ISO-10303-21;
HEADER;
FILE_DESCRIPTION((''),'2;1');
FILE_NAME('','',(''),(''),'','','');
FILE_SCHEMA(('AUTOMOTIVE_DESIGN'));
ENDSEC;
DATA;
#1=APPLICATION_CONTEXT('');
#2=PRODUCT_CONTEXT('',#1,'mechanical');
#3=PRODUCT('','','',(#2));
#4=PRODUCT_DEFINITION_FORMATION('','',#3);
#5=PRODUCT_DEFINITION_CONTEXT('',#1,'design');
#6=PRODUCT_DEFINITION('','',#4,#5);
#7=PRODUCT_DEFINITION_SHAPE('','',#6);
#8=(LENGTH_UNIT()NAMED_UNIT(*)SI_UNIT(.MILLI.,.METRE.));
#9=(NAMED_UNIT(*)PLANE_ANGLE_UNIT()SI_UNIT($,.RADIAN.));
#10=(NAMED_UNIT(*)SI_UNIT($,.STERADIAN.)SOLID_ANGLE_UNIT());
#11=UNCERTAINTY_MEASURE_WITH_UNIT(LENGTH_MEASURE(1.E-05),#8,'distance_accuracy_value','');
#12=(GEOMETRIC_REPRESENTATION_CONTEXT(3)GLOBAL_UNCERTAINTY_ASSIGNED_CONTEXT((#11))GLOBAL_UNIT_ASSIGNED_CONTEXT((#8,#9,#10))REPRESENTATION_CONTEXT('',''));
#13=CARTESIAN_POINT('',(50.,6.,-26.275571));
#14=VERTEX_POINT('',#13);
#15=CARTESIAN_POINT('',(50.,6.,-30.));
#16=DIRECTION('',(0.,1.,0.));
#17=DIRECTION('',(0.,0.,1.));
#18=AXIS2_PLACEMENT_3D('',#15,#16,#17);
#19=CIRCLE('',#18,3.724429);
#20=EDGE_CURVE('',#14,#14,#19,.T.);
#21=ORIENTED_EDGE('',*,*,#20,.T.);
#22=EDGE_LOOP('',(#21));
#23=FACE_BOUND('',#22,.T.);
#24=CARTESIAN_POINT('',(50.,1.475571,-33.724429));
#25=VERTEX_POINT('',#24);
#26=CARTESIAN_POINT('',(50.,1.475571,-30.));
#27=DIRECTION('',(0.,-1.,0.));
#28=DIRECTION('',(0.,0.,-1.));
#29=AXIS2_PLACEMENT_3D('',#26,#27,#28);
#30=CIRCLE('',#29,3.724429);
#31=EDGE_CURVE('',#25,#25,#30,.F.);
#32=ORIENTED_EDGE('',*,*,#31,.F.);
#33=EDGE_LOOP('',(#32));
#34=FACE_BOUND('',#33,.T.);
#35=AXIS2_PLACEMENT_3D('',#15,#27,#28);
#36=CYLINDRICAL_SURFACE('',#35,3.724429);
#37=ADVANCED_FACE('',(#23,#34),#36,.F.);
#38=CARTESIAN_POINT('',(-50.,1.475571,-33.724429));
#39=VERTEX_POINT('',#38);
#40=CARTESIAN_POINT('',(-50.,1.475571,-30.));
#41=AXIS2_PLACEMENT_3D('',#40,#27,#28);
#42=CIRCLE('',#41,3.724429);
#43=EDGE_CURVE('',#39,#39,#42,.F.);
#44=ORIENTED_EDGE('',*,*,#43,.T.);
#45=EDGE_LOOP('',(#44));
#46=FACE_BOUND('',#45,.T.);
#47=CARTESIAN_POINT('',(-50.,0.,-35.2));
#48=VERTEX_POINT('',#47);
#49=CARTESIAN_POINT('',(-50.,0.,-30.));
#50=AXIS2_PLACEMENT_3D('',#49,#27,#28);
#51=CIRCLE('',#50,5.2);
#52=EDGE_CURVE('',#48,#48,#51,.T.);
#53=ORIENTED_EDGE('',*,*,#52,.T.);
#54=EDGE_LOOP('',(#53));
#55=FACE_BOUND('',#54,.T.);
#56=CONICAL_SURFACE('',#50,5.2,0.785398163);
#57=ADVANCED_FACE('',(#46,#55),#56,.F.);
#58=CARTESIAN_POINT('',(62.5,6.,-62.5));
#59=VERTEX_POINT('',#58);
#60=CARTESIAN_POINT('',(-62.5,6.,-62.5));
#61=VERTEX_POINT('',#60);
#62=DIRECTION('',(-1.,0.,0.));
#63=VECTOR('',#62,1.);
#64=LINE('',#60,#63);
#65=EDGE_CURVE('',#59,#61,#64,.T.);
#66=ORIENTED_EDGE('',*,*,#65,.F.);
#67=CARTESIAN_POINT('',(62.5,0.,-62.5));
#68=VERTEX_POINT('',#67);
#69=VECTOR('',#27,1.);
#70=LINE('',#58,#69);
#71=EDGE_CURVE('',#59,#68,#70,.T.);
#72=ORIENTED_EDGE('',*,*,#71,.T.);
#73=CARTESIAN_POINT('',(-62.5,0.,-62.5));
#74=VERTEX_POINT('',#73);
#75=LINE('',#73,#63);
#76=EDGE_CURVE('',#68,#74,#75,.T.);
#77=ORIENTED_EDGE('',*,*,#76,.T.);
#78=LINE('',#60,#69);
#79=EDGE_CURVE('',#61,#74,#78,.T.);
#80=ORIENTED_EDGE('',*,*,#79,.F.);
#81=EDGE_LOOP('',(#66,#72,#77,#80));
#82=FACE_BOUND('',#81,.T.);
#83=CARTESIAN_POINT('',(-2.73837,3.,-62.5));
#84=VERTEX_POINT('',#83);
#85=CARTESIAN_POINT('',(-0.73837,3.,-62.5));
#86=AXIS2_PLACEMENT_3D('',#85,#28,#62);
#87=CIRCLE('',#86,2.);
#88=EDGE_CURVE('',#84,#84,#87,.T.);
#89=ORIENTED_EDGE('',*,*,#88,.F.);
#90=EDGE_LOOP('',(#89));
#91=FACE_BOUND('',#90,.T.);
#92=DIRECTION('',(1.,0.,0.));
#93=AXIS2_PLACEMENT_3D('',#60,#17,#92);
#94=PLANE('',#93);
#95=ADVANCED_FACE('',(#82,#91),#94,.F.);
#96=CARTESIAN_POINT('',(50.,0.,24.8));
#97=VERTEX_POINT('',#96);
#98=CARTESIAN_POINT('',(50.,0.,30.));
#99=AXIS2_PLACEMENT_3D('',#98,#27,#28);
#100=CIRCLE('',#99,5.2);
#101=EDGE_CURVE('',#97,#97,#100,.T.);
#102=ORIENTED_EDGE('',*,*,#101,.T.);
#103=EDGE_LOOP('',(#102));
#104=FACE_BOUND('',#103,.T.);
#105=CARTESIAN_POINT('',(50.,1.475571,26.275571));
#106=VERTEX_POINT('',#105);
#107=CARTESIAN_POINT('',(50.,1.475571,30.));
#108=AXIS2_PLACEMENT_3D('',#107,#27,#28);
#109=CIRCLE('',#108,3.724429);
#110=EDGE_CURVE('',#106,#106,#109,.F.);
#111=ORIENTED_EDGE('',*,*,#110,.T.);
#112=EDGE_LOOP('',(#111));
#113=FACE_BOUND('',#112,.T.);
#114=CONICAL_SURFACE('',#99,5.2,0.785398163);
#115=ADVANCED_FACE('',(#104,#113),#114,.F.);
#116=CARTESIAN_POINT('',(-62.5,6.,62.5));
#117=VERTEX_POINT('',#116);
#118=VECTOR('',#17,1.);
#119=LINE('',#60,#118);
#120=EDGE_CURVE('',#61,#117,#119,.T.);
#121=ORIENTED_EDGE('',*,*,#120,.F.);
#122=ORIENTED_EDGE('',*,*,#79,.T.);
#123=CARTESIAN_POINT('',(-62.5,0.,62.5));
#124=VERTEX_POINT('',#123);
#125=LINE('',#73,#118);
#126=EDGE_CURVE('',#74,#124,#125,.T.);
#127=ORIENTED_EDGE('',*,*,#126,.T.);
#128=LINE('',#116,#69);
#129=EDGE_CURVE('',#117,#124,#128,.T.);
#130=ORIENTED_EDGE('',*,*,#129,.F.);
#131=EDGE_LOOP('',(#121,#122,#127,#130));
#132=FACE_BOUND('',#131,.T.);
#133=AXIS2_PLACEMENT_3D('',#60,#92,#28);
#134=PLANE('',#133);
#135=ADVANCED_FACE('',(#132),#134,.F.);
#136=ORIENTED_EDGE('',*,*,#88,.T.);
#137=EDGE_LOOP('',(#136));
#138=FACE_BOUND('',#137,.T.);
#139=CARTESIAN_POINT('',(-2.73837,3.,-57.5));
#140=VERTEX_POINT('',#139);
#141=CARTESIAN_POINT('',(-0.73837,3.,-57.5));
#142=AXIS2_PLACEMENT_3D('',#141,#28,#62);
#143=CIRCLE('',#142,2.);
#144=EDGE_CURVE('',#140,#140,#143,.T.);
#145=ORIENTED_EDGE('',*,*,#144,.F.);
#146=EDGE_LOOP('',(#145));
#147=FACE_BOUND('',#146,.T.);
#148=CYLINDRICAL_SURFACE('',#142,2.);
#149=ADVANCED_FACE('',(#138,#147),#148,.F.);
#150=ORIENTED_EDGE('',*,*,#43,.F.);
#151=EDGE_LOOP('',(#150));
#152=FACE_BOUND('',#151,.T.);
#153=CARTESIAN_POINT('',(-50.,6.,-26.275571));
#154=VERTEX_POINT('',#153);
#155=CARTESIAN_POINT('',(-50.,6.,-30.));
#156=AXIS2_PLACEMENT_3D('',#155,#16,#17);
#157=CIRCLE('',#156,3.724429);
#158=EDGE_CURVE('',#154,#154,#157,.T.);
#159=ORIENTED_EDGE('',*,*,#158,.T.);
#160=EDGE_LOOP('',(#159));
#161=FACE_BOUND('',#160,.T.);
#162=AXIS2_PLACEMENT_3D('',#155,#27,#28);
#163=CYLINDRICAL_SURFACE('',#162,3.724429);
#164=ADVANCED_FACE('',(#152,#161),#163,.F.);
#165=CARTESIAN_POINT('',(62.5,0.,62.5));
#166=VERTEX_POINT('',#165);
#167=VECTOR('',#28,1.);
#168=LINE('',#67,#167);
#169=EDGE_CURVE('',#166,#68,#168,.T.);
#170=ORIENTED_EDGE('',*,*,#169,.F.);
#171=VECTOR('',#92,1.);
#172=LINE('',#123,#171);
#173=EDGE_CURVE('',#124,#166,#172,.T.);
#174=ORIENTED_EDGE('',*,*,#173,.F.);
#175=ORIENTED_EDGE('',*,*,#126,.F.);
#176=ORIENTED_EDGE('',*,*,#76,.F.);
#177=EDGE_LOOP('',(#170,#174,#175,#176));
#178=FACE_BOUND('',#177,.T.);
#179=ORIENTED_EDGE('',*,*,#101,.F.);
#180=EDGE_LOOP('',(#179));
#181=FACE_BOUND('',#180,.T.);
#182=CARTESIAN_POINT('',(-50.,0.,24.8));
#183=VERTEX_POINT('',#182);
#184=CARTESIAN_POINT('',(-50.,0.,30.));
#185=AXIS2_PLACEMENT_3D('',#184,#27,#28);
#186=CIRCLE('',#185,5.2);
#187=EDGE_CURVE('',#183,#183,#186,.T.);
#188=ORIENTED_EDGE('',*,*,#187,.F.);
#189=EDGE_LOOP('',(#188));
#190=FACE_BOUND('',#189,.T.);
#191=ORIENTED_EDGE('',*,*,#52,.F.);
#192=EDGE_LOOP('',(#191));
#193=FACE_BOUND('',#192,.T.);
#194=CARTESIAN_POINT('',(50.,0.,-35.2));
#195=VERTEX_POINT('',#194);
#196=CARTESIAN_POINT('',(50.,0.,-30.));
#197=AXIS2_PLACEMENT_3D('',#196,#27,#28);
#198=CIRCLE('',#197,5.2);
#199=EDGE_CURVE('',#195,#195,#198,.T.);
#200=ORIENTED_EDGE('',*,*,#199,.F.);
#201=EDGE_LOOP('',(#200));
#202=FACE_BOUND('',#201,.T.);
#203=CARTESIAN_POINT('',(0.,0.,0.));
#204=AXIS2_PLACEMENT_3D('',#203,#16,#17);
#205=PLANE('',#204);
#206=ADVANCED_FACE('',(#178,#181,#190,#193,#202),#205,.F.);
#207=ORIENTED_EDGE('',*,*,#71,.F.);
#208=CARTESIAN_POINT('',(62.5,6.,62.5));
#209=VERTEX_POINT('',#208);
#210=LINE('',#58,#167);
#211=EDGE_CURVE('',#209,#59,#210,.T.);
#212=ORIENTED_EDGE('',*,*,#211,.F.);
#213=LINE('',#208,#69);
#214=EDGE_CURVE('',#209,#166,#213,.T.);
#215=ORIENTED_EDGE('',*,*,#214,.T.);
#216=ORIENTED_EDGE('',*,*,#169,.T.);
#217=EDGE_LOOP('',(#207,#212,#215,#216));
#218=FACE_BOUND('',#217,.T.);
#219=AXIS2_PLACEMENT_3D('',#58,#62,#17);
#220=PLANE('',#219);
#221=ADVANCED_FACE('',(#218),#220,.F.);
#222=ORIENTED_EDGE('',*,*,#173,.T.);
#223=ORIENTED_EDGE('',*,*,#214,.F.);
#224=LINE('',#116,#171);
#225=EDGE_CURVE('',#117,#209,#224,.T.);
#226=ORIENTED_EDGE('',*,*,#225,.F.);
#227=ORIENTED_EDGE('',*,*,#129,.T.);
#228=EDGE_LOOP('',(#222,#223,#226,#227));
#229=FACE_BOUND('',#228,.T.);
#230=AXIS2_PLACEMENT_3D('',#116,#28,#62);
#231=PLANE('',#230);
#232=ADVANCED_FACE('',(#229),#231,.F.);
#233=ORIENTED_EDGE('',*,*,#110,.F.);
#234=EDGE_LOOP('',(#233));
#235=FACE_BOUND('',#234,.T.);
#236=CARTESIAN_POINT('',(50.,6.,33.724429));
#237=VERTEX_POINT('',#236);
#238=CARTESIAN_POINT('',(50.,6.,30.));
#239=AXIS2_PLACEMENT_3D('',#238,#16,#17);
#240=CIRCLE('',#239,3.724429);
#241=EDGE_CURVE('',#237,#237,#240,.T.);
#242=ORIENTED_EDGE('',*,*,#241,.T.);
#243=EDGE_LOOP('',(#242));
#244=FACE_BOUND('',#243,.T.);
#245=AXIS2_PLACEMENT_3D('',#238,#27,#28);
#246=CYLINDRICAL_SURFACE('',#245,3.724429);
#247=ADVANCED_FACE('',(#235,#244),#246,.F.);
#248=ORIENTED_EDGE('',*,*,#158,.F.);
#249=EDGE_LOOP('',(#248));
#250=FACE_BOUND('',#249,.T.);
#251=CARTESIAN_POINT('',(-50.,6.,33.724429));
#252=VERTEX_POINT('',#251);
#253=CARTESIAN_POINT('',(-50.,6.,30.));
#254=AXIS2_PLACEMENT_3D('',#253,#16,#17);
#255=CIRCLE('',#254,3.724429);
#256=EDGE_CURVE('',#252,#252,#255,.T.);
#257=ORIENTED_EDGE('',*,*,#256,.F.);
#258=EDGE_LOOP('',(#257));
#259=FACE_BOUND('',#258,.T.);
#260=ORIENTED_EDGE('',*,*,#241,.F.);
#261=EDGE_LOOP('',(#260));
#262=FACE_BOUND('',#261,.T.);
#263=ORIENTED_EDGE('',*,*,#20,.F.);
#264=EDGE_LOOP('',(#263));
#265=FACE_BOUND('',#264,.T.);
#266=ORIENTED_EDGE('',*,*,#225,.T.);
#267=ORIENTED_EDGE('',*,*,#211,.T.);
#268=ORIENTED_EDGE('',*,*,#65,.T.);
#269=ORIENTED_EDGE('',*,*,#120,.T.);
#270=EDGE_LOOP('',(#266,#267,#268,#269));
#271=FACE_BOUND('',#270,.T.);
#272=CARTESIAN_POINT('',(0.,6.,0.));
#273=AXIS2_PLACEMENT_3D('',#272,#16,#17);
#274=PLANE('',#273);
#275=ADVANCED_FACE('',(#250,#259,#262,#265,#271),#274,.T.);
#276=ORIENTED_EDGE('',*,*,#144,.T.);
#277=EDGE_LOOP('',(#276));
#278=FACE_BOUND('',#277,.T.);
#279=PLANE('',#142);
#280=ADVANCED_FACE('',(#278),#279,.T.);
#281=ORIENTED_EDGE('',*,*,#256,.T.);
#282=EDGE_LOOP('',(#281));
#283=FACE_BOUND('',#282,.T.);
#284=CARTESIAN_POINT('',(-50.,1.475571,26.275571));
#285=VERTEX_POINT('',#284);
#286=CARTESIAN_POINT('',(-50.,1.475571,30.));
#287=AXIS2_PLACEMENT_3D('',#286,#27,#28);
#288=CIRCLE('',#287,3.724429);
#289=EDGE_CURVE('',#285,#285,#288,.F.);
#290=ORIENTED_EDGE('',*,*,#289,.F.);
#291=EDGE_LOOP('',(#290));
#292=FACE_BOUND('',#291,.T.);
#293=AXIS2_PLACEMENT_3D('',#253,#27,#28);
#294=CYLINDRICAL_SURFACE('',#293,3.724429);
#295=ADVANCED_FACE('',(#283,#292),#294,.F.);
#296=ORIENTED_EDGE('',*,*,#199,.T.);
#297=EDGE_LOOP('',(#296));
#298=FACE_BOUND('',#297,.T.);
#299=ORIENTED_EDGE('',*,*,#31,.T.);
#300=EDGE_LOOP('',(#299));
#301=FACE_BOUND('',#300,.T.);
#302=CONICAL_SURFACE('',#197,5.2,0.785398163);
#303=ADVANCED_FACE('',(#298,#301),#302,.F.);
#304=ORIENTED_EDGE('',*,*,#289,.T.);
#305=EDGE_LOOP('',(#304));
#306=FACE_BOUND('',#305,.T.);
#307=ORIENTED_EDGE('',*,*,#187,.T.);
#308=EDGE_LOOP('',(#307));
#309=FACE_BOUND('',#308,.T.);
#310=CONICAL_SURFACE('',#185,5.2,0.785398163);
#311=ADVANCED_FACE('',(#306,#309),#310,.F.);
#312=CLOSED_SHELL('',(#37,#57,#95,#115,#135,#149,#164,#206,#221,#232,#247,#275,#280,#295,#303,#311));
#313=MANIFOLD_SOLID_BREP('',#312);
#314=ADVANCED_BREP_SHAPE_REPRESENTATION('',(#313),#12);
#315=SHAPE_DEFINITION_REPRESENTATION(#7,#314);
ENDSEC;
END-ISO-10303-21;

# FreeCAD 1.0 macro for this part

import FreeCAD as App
import Part
import Sketcher

doc = App.newDocument("Part")
body = doc.addObject("PartDesign::Body", "Body")

# Sketch on XZ plane
sketch1 = body.newObject("Sketcher::SketchObject", "Sketch")
sketch1.AttachmentSupport = (doc.getObject("XZ_Plane"), [""])
sketch1.MapMode = "FlatFace"
sketch1.addGeometry([
    Part.LineSegment(App.Vector(-62.5, -62.5, 0), App.Vector(-62.5, 62.5, 0)),  # 0
    Part.LineSegment(App.Vector(-62.5, 62.5, 0), App.Vector(62.5, 62.5, 0)),  # 1
    Part.LineSegment(App.Vector(62.5, 62.5, 0), App.Vector(62.5, -62.5, 0)),  # 2
    Part.LineSegment(App.Vector(62.5, -62.5, 0), App.Vector(-62.5, -62.5, 0)),  # 3
    Part.Circle(App.Vector(-50, 30, 0), App.Vector(0, 0, 1), 3.7),  # 4
    Part.Circle(App.Vector(50, 30, 0), App.Vector(0, 0, 1), 3.7),  # 5
    Part.Circle(App.Vector(-50, -30, 0), App.Vector(0, 0, 1), 3.7),  # 6
    Part.Circle(App.Vector(50, -30, 0), App.Vector(0, 0, 1), 3.7),  # 7
], False)
sketch1.addConstraint([
    Sketcher.Constraint("Coincident", 0, 2, 1, 1),
    Sketcher.Constraint("Coincident", 1, 2, 2, 1),
    Sketcher.Constraint("Coincident", 2, 2, 3, 1),
    Sketcher.Constraint("Coincident", 3, 2, 0, 1),
    Sketcher.Constraint("Vertical", 0),
    Sketcher.Constraint("Horizontal", 1),
    Sketcher.Constraint("Vertical", 2),
    Sketcher.Constraint("Horizontal", 3),
    Sketcher.Constraint("Equal", 4, 5),
    Sketcher.Constraint("Equal", 5, 6),
    Sketcher.Constraint("Equal", 6, 7),
    Sketcher.Constraint("Symmetric", 5, 3, 6, 3, -1, 1),
    Sketcher.Constraint("Symmetric", 4, 3, 7, 3, -1, 1),
    Sketcher.Constraint("Symmetric", 0, 2, 2, 2, -1, 1),
    Sketcher.Constraint("Symmetric", 4, 3, 5, 3, -2),
    Sketcher.Constraint("Equal", 3, 0),
    Sketcher.Constraint("DistanceX", 1, 1, 1, 2, 125.0),
    Sketcher.Constraint("DistanceX", 4, 3, -1, 1, 50.0),
    Sketcher.Constraint("DistanceY", -1, 1, 4, 3, 30.0),
    Sketcher.Constraint("Diameter", 4, 7.448858),
])
pad1 = body.newObject("PartDesign::Pad", "Pad")
pad1.Profile = sketch1
pad1.Length = 6
pad1.Reversed = True

# Sketch on XY plane
sketch2 = body.newObject("Sketcher::SketchObject", "Sketch001")
sketch2.AttachmentSupport = (doc.getObject("XY_Plane"), [""])
sketch2.MapMode = "FlatFace"
sketch2.AttachmentOffset = App.Placement(App.Vector(0, 0, -62.5), App.Rotation())
sketch2.addGeometry(Part.Circle(App.Vector(-0.7, 3, 0), App.Vector(0, 0, 1), 2), False)
sketch2.addConstraint([
    Sketcher.Constraint("Diameter", 0, 4.0),
    Sketcher.Constraint("DistanceY", -1, 1, 0, 3, 3.0),
    Sketcher.Constraint("DistanceX", 0, 3, -1, 1, 0.73837),
])
pocket1 = body.newObject("PartDesign::Pocket", "Pocket")
pocket1.Profile = sketch2
pocket1.Length = 5
pocket1.Reversed = True

# Sketch on XZ plane
sketch3 = body.newObject("Sketcher::SketchObject", "Sketch002")
sketch3.AttachmentSupport = (doc.getObject("XZ_Plane"), [""])
sketch3.MapMode = "FlatFace"
sketch3.addGeometry(Part.Circle(App.Vector(50, -30, 0), App.Vector(0, 0, 1), 2.9), False)
sketch3.addConstraint([
    Sketcher.Constraint("Diameter", 0, 5.8),
    Sketcher.Constraint("DistanceX", -1, 1, 0, 3, 50.0),
    Sketcher.Constraint("DistanceY", 0, 3, -1, 1, 30.0),
])
doc.recompute()
hole = body.newObject("PartDesign::Hole", "Hole")
hole.Profile = sketch3
hole.ThreadType = "None"
hole.Diameter = 5.8
hole.DepthType = "Dimension"
hole.Depth = 6
hole.DrillPoint = "Angled"
hole.DrillPointAngle = 118
hole.HoleCutType = "Countersink"
hole.HoleCutDiameter = 10.4
hole.HoleCutCountersinkAngle = 90

# Sketch on XZ plane
sketch4 = body.newObject("Sketcher::SketchObject", "Sketch003")
sketch4.AttachmentSupport = (doc.getObject("XZ_Plane"), [""])
sketch4.MapMode = "FlatFace"
sketch4.addGeometry(Part.Circle(App.Vector(-50, -30, 0), App.Vector(0, 0, 1), 2.9), False)
sketch4.addConstraint([
    Sketcher.Constraint("Diameter", 0, 5.8),
    Sketcher.Constraint("DistanceX", 0, 3, -1, 1, 50.0),
    Sketcher.Constraint("DistanceY", 0, 3, -1, 1, 30.0),
])
doc.recompute()
hole2 = body.newObject("PartDesign::Hole", "Hole001")
hole2.Profile = sketch4
hole2.ThreadType = "None"
hole2.Diameter = 5.8
hole2.DepthType = "Dimension"
hole2.Depth = 6
hole2.DrillPoint = "Angled"
hole2.DrillPointAngle = 118
hole2.HoleCutType = "Countersink"
hole2.HoleCutDiameter = 10.4
hole2.HoleCutCountersinkAngle = 90

# Sketch on XZ plane
sketch5 = body.newObject("Sketcher::SketchObject", "Sketch004")
sketch5.AttachmentSupport = (doc.getObject("XZ_Plane"), [""])
sketch5.MapMode = "FlatFace"
sketch5.addGeometry(Part.Circle(App.Vector(-50, 30, 0), App.Vector(0, 0, 1), 2.9), False)
sketch5.addConstraint([
    Sketcher.Constraint("Diameter", 0, 5.8),
    Sketcher.Constraint("DistanceX", 0, 3, -1, 1, 50.0),
    Sketcher.Constraint("DistanceY", -1, 1, 0, 3, 30.0),
])
doc.recompute()
hole3 = body.newObject("PartDesign::Hole", "Hole002")
hole3.Profile = sketch5
hole3.ThreadType = "None"
hole3.Diameter = 5.8
hole3.DepthType = "Dimension"
hole3.Depth = 6
hole3.DrillPoint = "Angled"
hole3.DrillPointAngle = 118
hole3.HoleCutType = "Countersink"
hole3.HoleCutDiameter = 10.4
hole3.HoleCutCountersinkAngle = 90

# Sketch on XZ plane
sketch6 = body.newObject("Sketcher::SketchObject", "Sketch005")
sketch6.AttachmentSupport = (doc.getObject("XZ_Plane"), [""])
sketch6.MapMode = "FlatFace"
sketch6.addGeometry(Part.Circle(App.Vector(50, 30, 0), App.Vector(0, 0, 1), 2.9), False)
sketch6.addConstraint([
    Sketcher.Constraint("Diameter", 0, 5.8),
    Sketcher.Constraint("DistanceX", -1, 1, 0, 3, 50.0),
    Sketcher.Constraint("DistanceY", -1, 1, 0, 3, 30.0),
])
doc.recompute()
hole4 = body.newObject("PartDesign::Hole", "Hole003")
hole4.Profile = sketch6
hole4.ThreadType = "None"
hole4.Diameter = 5.8
hole4.DepthType = "Dimension"
hole4.Depth = 6
hole4.DrillPoint = "Angled"
hole4.DrillPointAngle = 118
hole4.HoleCutType = "Countersink"
hole4.HoleCutDiameter = 10.4
hole4.HoleCutCountersinkAngle = 90

doc.recompute()
